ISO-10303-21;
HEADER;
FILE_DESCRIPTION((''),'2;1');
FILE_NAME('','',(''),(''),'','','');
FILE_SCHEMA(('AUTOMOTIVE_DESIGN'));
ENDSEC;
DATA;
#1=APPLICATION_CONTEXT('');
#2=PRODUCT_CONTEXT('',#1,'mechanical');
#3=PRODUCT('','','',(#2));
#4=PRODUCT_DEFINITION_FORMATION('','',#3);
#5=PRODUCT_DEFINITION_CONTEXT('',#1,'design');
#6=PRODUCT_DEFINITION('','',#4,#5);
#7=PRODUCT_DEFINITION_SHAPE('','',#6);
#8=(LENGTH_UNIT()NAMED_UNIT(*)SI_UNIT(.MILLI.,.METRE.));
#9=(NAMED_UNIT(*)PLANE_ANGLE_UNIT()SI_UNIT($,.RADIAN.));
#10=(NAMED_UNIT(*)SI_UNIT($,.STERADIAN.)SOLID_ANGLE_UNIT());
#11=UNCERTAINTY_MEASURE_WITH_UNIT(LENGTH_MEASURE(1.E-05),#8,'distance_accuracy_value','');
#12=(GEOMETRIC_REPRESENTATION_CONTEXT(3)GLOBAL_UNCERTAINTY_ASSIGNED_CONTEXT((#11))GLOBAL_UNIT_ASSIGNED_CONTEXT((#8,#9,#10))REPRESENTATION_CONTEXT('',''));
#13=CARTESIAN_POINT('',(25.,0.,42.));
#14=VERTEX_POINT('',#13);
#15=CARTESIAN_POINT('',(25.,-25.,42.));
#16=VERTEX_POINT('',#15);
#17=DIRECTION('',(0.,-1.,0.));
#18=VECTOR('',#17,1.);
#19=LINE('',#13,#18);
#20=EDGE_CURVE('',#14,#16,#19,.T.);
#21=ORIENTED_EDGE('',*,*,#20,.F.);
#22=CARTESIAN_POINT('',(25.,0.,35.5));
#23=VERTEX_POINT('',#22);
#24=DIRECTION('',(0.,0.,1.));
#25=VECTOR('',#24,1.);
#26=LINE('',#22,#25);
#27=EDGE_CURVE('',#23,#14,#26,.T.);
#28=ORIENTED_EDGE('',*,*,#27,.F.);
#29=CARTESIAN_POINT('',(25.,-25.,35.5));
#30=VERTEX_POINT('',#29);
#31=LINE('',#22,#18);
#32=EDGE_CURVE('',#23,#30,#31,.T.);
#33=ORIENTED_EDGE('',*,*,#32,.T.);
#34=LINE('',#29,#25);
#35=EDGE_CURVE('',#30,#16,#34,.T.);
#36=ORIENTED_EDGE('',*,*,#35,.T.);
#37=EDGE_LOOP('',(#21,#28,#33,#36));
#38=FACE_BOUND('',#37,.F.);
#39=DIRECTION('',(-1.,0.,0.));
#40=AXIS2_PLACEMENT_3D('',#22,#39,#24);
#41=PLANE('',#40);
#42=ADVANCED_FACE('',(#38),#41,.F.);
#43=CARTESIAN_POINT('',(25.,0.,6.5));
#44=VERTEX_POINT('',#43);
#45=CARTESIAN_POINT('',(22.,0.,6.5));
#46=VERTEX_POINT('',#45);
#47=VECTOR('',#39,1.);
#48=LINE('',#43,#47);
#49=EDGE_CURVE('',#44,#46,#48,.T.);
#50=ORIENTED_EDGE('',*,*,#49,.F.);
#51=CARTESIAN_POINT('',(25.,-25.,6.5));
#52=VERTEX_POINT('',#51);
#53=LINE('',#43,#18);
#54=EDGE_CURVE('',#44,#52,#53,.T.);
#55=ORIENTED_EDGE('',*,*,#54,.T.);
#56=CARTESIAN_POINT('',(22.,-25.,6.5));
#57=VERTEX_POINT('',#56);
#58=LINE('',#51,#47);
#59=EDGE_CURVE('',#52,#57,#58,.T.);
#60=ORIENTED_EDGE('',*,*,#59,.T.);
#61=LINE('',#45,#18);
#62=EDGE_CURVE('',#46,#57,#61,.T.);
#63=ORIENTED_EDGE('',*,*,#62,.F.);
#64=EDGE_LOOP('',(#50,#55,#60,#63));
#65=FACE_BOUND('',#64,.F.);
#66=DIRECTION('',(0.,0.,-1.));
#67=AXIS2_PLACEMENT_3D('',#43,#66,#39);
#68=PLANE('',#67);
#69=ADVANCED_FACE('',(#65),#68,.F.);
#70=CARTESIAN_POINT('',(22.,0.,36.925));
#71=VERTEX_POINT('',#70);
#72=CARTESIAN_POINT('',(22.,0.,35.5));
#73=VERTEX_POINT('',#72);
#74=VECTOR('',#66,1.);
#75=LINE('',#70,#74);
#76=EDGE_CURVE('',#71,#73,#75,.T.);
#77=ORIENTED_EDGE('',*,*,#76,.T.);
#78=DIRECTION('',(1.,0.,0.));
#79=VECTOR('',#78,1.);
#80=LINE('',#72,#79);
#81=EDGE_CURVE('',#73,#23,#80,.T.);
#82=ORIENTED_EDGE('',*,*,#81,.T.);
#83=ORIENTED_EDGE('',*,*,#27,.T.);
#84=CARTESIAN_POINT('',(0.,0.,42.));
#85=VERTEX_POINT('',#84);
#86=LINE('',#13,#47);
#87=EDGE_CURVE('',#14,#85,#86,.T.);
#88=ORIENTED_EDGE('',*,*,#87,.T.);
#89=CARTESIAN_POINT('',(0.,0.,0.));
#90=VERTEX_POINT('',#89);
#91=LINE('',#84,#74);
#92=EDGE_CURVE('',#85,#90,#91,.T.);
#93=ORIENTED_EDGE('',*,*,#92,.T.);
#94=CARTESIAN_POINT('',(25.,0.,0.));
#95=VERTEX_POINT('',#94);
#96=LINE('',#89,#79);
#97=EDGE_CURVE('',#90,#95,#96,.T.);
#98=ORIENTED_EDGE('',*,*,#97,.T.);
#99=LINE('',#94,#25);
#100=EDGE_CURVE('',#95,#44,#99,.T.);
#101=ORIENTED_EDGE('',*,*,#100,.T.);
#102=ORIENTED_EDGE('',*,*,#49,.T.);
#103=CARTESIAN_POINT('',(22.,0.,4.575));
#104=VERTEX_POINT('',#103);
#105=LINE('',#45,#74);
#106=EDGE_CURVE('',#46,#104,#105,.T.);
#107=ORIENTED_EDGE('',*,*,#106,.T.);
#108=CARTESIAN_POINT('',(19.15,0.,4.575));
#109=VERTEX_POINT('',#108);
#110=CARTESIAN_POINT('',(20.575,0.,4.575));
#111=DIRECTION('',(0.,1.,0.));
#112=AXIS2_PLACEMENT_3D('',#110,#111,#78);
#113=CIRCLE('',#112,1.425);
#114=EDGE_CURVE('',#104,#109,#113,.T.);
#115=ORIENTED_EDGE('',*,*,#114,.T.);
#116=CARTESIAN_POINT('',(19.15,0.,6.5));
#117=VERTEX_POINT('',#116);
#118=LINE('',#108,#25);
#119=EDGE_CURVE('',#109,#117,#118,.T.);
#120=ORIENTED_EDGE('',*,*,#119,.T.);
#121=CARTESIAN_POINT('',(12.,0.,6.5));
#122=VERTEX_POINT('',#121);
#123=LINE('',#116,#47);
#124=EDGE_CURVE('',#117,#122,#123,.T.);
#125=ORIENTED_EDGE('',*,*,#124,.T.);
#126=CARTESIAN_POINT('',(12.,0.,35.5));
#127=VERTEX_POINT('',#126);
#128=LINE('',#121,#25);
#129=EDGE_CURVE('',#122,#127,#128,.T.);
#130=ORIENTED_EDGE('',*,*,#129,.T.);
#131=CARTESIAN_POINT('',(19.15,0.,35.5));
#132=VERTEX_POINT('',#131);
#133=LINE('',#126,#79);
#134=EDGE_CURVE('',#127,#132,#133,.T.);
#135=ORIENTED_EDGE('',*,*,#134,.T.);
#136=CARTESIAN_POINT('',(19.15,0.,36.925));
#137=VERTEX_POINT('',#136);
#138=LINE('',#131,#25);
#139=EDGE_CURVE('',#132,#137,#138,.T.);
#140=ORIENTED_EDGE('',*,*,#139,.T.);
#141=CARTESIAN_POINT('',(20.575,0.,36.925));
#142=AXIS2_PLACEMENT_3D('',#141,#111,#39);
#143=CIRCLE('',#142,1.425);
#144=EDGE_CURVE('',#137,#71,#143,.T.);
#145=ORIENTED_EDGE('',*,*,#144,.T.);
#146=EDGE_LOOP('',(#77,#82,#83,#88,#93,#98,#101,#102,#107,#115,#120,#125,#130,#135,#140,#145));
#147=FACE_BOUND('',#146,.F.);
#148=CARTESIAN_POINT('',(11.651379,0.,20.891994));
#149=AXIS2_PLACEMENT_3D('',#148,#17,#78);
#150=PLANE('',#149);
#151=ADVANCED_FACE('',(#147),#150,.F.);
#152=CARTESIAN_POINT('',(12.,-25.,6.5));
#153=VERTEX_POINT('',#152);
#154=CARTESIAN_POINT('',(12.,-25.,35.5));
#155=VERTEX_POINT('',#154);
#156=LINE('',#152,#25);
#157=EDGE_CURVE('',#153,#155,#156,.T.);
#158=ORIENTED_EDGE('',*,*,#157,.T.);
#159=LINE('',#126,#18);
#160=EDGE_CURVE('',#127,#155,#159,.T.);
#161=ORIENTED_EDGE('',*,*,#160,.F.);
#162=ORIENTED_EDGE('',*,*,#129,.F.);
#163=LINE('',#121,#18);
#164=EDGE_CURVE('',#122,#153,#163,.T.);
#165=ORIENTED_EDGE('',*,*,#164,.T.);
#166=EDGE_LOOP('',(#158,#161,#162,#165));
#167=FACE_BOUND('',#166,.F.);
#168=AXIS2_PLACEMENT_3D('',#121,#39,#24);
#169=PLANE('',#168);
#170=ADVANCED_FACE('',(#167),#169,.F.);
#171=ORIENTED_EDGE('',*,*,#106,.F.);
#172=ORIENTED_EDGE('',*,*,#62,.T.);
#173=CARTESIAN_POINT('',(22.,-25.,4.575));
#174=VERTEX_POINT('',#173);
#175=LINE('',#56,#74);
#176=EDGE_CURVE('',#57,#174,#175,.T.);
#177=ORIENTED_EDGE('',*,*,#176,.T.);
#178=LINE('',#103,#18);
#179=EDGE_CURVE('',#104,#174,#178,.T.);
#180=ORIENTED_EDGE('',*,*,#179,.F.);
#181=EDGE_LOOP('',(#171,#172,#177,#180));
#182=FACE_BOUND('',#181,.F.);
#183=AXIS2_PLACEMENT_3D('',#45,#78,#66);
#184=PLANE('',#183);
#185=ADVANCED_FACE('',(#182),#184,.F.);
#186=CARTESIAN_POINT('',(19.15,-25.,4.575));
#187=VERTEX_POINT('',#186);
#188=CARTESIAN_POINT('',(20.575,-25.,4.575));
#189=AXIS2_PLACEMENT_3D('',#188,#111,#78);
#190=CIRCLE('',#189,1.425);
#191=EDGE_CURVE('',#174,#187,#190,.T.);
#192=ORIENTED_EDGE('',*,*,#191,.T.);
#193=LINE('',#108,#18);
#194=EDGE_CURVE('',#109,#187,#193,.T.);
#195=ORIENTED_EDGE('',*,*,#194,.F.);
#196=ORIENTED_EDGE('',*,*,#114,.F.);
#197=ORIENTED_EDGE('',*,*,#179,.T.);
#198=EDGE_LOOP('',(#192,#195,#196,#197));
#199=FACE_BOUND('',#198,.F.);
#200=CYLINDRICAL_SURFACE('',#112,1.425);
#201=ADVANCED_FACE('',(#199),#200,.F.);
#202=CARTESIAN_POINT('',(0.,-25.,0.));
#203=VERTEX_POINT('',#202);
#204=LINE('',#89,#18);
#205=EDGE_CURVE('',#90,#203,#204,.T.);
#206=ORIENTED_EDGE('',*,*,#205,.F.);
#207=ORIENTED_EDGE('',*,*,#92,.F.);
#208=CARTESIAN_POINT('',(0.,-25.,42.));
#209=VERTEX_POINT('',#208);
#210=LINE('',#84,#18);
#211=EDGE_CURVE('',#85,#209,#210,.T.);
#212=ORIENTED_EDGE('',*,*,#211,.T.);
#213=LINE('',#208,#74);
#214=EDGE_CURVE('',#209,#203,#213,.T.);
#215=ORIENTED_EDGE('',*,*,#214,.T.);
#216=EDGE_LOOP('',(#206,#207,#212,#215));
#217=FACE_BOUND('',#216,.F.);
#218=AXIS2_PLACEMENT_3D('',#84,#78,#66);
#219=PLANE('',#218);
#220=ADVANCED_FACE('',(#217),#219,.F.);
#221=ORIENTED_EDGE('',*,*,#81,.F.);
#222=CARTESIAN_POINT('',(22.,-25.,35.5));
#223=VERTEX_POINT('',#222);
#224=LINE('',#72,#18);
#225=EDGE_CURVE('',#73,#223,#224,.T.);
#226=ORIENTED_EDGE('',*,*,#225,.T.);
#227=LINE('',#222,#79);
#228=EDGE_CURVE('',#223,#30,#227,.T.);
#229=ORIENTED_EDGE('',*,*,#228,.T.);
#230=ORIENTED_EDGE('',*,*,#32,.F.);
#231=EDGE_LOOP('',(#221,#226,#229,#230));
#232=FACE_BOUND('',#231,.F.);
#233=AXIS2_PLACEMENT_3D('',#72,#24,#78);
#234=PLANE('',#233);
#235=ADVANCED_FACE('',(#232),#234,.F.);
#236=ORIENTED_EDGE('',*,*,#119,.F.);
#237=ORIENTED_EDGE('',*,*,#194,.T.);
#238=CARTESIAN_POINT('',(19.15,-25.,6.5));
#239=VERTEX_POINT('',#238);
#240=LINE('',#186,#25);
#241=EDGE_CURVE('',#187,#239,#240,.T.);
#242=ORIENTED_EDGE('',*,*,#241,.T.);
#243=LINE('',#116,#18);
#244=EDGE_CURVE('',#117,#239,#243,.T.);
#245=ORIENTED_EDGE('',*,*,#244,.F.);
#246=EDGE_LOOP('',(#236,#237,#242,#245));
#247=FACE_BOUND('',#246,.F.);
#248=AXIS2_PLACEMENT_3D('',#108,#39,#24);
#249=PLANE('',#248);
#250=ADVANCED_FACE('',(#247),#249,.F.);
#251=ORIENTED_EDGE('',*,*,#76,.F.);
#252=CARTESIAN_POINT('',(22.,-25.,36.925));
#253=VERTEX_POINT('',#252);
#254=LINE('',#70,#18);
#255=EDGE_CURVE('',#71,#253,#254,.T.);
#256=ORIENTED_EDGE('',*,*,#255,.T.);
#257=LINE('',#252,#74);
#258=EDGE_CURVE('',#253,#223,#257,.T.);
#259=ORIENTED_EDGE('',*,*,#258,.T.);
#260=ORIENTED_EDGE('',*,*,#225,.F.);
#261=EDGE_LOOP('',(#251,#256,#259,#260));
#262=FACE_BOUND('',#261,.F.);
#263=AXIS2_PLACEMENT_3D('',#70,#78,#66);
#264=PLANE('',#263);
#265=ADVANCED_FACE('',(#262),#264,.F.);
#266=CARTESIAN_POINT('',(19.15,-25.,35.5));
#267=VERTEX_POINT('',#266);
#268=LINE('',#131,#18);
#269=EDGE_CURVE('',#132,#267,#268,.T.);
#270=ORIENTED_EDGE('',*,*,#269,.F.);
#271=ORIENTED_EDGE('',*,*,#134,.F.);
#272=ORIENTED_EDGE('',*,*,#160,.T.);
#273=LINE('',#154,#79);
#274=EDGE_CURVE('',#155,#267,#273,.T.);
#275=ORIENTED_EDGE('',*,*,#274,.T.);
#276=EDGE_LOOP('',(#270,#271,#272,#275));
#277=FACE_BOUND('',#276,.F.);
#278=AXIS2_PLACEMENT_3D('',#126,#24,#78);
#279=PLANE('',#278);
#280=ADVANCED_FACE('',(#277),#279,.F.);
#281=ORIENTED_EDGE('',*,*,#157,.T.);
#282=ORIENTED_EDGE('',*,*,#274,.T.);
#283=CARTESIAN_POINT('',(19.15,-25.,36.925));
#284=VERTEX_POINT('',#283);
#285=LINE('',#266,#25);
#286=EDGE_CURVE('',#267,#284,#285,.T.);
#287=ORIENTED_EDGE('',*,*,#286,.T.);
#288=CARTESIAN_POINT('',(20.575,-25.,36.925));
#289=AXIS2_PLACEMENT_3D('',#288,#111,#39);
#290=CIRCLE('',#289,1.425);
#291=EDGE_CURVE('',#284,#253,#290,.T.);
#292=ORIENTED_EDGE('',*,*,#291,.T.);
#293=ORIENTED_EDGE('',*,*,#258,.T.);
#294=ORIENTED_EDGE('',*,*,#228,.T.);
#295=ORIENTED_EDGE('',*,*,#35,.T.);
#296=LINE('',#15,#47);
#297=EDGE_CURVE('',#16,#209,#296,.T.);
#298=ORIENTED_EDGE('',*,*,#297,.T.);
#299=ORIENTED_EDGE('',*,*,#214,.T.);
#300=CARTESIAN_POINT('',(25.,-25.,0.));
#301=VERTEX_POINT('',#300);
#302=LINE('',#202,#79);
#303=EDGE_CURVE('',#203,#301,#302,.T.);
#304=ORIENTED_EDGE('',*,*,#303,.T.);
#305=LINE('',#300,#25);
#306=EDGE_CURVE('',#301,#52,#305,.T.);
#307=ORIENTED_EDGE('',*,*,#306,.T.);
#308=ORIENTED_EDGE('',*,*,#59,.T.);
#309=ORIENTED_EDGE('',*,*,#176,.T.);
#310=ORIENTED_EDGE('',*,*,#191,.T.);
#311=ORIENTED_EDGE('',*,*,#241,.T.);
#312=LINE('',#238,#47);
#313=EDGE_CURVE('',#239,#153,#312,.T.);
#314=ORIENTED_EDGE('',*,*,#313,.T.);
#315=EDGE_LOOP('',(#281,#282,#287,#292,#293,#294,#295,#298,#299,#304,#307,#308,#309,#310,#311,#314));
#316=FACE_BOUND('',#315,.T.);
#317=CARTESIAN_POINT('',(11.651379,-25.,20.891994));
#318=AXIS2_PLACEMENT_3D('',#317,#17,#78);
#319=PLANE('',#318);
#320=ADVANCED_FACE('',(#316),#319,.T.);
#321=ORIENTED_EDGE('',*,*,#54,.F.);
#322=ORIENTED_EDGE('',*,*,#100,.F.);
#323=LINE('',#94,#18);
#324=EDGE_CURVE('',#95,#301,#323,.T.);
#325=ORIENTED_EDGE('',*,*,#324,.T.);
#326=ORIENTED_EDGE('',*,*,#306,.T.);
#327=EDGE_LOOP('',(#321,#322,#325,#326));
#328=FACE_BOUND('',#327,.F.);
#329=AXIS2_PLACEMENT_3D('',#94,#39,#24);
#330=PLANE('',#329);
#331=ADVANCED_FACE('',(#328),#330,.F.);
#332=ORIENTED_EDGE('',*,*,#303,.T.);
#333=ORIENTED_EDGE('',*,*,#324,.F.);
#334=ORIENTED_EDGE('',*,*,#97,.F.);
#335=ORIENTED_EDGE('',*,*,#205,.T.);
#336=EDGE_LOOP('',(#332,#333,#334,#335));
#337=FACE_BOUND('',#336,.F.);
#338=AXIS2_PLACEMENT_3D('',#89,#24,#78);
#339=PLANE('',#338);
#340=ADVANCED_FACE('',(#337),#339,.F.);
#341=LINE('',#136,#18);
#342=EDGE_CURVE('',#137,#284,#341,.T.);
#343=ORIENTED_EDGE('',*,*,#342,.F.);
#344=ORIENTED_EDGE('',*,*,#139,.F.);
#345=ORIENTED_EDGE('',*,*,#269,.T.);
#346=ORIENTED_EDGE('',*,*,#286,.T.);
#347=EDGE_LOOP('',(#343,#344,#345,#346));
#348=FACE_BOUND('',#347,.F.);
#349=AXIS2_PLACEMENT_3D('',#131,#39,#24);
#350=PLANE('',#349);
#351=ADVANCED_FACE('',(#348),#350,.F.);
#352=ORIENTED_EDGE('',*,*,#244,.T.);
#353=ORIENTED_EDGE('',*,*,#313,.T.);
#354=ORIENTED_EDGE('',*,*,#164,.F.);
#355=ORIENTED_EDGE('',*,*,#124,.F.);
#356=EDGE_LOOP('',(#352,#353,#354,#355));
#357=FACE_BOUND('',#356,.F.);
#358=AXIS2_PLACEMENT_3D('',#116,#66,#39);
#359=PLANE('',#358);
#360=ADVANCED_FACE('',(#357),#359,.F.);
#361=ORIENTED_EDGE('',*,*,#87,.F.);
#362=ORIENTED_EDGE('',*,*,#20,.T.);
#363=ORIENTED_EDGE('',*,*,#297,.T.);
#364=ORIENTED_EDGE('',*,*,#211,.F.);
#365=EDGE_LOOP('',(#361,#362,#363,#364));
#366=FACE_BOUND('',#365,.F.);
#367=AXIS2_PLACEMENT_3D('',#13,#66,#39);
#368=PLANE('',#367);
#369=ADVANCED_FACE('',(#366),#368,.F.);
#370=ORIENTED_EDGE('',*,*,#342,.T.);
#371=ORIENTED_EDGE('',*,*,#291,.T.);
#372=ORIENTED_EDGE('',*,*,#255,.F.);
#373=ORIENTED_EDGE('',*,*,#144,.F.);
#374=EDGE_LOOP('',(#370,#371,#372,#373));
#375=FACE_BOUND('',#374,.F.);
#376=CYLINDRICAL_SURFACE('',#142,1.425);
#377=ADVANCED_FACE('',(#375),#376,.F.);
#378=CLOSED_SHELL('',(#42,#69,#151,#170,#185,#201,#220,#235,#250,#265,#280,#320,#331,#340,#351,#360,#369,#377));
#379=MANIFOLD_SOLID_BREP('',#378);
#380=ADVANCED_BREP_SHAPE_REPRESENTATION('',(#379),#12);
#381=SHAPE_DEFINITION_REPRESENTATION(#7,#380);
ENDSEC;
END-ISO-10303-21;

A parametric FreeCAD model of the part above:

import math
import FreeCAD as App
import Part
import Sketcher

V = App.Vector
Q = App.Units.Quantity

doc = App.newDocument("Part")
params = doc.addObject("Spreadsheet::Sheet", "Params")
for row, (alias, value) in enumerate([
    ("sketch1_width", "25 mm"),
    ("sketch1_width2", "3 mm"),
    ("sketch1_height", "42 mm"),
    ("sketch1_height2", "29 mm"),
    ("pad1_length", "25 mm"),
], start=1):
    params.set(f"A{row}", alias)
    params.set(f"B{row}", "=" + value)
    params.setAlias(f"B{row}", alias)

body = doc.addObject("PartDesign::Body", "Body")

# Sketch on XZ plane
sketch1 = body.newObject("Sketcher::SketchObject", "Sketch")
sketch1.AttachmentSupport = (doc.getObject("XZ_Plane"), [""])
sketch1.MapMode = "FlatFace"
sketch1.addGeometry([
    Part.LineSegment(V(0, 42, 0), V(0, 0, 0)),  # 0
    Part.LineSegment(V(0, 0, 0), V(25, 0, 0)),  # 1
    Part.LineSegment(V(25, 0, 0), V(25, 6.5, 0)),  # 2
    Part.LineSegment(V(25, 6.5, 0), V(22, 6.5, 0)),  # 3
    Part.LineSegment(V(22, 6.5, 0), V(22, 4.6, 0)),  # 4
    Part.ArcOfCircle(Part.Circle(V(20.6, 4.6, 0), V(0, 0, 1), 1.4), math.radians(180), math.radians(360)),  # 5
    Part.LineSegment(V(19.1, 4.6, 0), V(19.1, 6.5, 0)),  # 6
    Part.LineSegment(V(19.1, 6.5, 0), V(12, 6.5, 0)),  # 7
    Part.LineSegment(V(12, 6.5, 0), V(12, 35.5, 0)),  # 8
    Part.LineSegment(V(12, 35.5, 0), V(19.1, 35.5, 0)),  # 9
    Part.LineSegment(V(19.1, 35.5, 0), V(19.1, 36.9, 0)),  # 10
    Part.ArcOfCircle(Part.Circle(V(20.6, 36.9, 0), V(0, 0, 1), 1.4), math.radians(0), math.radians(180)),  # 11
    Part.LineSegment(V(22, 36.9, 0), V(22, 35.5, 0)),  # 12
    Part.LineSegment(V(22, 35.5, 0), V(25, 35.5, 0)),  # 13
    Part.LineSegment(V(25, 35.5, 0), V(25, 42, 0)),  # 14
    Part.LineSegment(V(25, 42, 0), V(0, 42, 0)),  # 15
], False)
sketch1.addConstraint([
    Sketcher.Constraint("Coincident", 0, 2, 1, 1),
    Sketcher.Constraint("Coincident", 1, 2, 2, 1),
    Sketcher.Constraint("Coincident", 2, 2, 3, 1),
    Sketcher.Constraint("Coincident", 3, 2, 4, 1),
    Sketcher.Constraint("Tangent", 4, 2, 5, 2),
    Sketcher.Constraint("Tangent", 5, 1, 6, 1),
    Sketcher.Constraint("Coincident", 6, 2, 7, 1),
    Sketcher.Constraint("Coincident", 7, 2, 8, 1),
    Sketcher.Constraint("Coincident", 8, 2, 9, 1),
    Sketcher.Constraint("Coincident", 9, 2, 10, 1),
    Sketcher.Constraint("Tangent", 10, 2, 11, 2),
    Sketcher.Constraint("Tangent", 11, 1, 12, 1),
    Sketcher.Constraint("Coincident", 12, 2, 13, 1),
    Sketcher.Constraint("Coincident", 13, 2, 14, 1),
    Sketcher.Constraint("Coincident", 14, 2, 15, 1),
    Sketcher.Constraint("Coincident", 15, 2, 0, 1),
    Sketcher.Constraint("Vertical", 0),
    Sketcher.Constraint("Horizontal", 1),
    Sketcher.Constraint("Vertical", 2),
    Sketcher.Constraint("Horizontal", 3),
    Sketcher.Constraint("Vertical", 4),
    Sketcher.Constraint("Vertical", 6),
    Sketcher.Constraint("Horizontal", 7),
    Sketcher.Constraint("Vertical", 8),
    Sketcher.Constraint("Horizontal", 9),
    Sketcher.Constraint("Vertical", 10),
    Sketcher.Constraint("Vertical", 12),
    Sketcher.Constraint("Horizontal", 13),
    Sketcher.Constraint("Vertical", 14),
    Sketcher.Constraint("Horizontal", 15),
    Sketcher.Constraint("Coincident", 0, 2, -1, 1),
    Sketcher.Constraint("Equal", 5, 11),
    Sketcher.Constraint("Horizontal", 3, 2, 6, 2),
    Sketcher.Constraint("Horizontal", 9, 2, 12, 2),
    Sketcher.Constraint("Vertical", 5, 3, 11, 3),
    Sketcher.Constraint("Vertical", 2, 2, 13, 2),
    Sketcher.Constraint("Equal", 2, 14),
    Sketcher.Constraint("DistanceX", 1, 1, 1, 2, Q("25 mm")),
    Sketcher.Constraint("DistanceX", 3, 2, 3, 1, Q("3 mm")),
    Sketcher.Constraint("DistanceY", 0, 2, 0, 1, Q("42 mm")),
    Sketcher.Constraint("DistanceY", 8, 1, 8, 2, Q("29 mm")),
    Sketcher.Constraint("DistanceX", -1, 1, 7, 2, Q("12 mm")),
    Sketcher.Constraint("Radius", 5, Q("1.425 mm")),
    Sketcher.Constraint("DistanceY", 4, 2, 4, 1, Q("1.925 mm")),
    Sketcher.Constraint("DistanceY", 10, 1, 10, 2, Q("1.425 mm")),
])
sketch1.setExpression("Constraints[37]", "Params.sketch1_width")
sketch1.setExpression("Constraints[38]", "Params.sketch1_width2")
sketch1.setExpression("Constraints[39]", "Params.sketch1_height")
sketch1.setExpression("Constraints[40]", "Params.sketch1_height2")
pad1 = body.newObject("PartDesign::Pad", "Pad")
pad1.Profile = sketch1
pad1.setExpression("Length", "Params.pad1_length")

doc.recompute()
